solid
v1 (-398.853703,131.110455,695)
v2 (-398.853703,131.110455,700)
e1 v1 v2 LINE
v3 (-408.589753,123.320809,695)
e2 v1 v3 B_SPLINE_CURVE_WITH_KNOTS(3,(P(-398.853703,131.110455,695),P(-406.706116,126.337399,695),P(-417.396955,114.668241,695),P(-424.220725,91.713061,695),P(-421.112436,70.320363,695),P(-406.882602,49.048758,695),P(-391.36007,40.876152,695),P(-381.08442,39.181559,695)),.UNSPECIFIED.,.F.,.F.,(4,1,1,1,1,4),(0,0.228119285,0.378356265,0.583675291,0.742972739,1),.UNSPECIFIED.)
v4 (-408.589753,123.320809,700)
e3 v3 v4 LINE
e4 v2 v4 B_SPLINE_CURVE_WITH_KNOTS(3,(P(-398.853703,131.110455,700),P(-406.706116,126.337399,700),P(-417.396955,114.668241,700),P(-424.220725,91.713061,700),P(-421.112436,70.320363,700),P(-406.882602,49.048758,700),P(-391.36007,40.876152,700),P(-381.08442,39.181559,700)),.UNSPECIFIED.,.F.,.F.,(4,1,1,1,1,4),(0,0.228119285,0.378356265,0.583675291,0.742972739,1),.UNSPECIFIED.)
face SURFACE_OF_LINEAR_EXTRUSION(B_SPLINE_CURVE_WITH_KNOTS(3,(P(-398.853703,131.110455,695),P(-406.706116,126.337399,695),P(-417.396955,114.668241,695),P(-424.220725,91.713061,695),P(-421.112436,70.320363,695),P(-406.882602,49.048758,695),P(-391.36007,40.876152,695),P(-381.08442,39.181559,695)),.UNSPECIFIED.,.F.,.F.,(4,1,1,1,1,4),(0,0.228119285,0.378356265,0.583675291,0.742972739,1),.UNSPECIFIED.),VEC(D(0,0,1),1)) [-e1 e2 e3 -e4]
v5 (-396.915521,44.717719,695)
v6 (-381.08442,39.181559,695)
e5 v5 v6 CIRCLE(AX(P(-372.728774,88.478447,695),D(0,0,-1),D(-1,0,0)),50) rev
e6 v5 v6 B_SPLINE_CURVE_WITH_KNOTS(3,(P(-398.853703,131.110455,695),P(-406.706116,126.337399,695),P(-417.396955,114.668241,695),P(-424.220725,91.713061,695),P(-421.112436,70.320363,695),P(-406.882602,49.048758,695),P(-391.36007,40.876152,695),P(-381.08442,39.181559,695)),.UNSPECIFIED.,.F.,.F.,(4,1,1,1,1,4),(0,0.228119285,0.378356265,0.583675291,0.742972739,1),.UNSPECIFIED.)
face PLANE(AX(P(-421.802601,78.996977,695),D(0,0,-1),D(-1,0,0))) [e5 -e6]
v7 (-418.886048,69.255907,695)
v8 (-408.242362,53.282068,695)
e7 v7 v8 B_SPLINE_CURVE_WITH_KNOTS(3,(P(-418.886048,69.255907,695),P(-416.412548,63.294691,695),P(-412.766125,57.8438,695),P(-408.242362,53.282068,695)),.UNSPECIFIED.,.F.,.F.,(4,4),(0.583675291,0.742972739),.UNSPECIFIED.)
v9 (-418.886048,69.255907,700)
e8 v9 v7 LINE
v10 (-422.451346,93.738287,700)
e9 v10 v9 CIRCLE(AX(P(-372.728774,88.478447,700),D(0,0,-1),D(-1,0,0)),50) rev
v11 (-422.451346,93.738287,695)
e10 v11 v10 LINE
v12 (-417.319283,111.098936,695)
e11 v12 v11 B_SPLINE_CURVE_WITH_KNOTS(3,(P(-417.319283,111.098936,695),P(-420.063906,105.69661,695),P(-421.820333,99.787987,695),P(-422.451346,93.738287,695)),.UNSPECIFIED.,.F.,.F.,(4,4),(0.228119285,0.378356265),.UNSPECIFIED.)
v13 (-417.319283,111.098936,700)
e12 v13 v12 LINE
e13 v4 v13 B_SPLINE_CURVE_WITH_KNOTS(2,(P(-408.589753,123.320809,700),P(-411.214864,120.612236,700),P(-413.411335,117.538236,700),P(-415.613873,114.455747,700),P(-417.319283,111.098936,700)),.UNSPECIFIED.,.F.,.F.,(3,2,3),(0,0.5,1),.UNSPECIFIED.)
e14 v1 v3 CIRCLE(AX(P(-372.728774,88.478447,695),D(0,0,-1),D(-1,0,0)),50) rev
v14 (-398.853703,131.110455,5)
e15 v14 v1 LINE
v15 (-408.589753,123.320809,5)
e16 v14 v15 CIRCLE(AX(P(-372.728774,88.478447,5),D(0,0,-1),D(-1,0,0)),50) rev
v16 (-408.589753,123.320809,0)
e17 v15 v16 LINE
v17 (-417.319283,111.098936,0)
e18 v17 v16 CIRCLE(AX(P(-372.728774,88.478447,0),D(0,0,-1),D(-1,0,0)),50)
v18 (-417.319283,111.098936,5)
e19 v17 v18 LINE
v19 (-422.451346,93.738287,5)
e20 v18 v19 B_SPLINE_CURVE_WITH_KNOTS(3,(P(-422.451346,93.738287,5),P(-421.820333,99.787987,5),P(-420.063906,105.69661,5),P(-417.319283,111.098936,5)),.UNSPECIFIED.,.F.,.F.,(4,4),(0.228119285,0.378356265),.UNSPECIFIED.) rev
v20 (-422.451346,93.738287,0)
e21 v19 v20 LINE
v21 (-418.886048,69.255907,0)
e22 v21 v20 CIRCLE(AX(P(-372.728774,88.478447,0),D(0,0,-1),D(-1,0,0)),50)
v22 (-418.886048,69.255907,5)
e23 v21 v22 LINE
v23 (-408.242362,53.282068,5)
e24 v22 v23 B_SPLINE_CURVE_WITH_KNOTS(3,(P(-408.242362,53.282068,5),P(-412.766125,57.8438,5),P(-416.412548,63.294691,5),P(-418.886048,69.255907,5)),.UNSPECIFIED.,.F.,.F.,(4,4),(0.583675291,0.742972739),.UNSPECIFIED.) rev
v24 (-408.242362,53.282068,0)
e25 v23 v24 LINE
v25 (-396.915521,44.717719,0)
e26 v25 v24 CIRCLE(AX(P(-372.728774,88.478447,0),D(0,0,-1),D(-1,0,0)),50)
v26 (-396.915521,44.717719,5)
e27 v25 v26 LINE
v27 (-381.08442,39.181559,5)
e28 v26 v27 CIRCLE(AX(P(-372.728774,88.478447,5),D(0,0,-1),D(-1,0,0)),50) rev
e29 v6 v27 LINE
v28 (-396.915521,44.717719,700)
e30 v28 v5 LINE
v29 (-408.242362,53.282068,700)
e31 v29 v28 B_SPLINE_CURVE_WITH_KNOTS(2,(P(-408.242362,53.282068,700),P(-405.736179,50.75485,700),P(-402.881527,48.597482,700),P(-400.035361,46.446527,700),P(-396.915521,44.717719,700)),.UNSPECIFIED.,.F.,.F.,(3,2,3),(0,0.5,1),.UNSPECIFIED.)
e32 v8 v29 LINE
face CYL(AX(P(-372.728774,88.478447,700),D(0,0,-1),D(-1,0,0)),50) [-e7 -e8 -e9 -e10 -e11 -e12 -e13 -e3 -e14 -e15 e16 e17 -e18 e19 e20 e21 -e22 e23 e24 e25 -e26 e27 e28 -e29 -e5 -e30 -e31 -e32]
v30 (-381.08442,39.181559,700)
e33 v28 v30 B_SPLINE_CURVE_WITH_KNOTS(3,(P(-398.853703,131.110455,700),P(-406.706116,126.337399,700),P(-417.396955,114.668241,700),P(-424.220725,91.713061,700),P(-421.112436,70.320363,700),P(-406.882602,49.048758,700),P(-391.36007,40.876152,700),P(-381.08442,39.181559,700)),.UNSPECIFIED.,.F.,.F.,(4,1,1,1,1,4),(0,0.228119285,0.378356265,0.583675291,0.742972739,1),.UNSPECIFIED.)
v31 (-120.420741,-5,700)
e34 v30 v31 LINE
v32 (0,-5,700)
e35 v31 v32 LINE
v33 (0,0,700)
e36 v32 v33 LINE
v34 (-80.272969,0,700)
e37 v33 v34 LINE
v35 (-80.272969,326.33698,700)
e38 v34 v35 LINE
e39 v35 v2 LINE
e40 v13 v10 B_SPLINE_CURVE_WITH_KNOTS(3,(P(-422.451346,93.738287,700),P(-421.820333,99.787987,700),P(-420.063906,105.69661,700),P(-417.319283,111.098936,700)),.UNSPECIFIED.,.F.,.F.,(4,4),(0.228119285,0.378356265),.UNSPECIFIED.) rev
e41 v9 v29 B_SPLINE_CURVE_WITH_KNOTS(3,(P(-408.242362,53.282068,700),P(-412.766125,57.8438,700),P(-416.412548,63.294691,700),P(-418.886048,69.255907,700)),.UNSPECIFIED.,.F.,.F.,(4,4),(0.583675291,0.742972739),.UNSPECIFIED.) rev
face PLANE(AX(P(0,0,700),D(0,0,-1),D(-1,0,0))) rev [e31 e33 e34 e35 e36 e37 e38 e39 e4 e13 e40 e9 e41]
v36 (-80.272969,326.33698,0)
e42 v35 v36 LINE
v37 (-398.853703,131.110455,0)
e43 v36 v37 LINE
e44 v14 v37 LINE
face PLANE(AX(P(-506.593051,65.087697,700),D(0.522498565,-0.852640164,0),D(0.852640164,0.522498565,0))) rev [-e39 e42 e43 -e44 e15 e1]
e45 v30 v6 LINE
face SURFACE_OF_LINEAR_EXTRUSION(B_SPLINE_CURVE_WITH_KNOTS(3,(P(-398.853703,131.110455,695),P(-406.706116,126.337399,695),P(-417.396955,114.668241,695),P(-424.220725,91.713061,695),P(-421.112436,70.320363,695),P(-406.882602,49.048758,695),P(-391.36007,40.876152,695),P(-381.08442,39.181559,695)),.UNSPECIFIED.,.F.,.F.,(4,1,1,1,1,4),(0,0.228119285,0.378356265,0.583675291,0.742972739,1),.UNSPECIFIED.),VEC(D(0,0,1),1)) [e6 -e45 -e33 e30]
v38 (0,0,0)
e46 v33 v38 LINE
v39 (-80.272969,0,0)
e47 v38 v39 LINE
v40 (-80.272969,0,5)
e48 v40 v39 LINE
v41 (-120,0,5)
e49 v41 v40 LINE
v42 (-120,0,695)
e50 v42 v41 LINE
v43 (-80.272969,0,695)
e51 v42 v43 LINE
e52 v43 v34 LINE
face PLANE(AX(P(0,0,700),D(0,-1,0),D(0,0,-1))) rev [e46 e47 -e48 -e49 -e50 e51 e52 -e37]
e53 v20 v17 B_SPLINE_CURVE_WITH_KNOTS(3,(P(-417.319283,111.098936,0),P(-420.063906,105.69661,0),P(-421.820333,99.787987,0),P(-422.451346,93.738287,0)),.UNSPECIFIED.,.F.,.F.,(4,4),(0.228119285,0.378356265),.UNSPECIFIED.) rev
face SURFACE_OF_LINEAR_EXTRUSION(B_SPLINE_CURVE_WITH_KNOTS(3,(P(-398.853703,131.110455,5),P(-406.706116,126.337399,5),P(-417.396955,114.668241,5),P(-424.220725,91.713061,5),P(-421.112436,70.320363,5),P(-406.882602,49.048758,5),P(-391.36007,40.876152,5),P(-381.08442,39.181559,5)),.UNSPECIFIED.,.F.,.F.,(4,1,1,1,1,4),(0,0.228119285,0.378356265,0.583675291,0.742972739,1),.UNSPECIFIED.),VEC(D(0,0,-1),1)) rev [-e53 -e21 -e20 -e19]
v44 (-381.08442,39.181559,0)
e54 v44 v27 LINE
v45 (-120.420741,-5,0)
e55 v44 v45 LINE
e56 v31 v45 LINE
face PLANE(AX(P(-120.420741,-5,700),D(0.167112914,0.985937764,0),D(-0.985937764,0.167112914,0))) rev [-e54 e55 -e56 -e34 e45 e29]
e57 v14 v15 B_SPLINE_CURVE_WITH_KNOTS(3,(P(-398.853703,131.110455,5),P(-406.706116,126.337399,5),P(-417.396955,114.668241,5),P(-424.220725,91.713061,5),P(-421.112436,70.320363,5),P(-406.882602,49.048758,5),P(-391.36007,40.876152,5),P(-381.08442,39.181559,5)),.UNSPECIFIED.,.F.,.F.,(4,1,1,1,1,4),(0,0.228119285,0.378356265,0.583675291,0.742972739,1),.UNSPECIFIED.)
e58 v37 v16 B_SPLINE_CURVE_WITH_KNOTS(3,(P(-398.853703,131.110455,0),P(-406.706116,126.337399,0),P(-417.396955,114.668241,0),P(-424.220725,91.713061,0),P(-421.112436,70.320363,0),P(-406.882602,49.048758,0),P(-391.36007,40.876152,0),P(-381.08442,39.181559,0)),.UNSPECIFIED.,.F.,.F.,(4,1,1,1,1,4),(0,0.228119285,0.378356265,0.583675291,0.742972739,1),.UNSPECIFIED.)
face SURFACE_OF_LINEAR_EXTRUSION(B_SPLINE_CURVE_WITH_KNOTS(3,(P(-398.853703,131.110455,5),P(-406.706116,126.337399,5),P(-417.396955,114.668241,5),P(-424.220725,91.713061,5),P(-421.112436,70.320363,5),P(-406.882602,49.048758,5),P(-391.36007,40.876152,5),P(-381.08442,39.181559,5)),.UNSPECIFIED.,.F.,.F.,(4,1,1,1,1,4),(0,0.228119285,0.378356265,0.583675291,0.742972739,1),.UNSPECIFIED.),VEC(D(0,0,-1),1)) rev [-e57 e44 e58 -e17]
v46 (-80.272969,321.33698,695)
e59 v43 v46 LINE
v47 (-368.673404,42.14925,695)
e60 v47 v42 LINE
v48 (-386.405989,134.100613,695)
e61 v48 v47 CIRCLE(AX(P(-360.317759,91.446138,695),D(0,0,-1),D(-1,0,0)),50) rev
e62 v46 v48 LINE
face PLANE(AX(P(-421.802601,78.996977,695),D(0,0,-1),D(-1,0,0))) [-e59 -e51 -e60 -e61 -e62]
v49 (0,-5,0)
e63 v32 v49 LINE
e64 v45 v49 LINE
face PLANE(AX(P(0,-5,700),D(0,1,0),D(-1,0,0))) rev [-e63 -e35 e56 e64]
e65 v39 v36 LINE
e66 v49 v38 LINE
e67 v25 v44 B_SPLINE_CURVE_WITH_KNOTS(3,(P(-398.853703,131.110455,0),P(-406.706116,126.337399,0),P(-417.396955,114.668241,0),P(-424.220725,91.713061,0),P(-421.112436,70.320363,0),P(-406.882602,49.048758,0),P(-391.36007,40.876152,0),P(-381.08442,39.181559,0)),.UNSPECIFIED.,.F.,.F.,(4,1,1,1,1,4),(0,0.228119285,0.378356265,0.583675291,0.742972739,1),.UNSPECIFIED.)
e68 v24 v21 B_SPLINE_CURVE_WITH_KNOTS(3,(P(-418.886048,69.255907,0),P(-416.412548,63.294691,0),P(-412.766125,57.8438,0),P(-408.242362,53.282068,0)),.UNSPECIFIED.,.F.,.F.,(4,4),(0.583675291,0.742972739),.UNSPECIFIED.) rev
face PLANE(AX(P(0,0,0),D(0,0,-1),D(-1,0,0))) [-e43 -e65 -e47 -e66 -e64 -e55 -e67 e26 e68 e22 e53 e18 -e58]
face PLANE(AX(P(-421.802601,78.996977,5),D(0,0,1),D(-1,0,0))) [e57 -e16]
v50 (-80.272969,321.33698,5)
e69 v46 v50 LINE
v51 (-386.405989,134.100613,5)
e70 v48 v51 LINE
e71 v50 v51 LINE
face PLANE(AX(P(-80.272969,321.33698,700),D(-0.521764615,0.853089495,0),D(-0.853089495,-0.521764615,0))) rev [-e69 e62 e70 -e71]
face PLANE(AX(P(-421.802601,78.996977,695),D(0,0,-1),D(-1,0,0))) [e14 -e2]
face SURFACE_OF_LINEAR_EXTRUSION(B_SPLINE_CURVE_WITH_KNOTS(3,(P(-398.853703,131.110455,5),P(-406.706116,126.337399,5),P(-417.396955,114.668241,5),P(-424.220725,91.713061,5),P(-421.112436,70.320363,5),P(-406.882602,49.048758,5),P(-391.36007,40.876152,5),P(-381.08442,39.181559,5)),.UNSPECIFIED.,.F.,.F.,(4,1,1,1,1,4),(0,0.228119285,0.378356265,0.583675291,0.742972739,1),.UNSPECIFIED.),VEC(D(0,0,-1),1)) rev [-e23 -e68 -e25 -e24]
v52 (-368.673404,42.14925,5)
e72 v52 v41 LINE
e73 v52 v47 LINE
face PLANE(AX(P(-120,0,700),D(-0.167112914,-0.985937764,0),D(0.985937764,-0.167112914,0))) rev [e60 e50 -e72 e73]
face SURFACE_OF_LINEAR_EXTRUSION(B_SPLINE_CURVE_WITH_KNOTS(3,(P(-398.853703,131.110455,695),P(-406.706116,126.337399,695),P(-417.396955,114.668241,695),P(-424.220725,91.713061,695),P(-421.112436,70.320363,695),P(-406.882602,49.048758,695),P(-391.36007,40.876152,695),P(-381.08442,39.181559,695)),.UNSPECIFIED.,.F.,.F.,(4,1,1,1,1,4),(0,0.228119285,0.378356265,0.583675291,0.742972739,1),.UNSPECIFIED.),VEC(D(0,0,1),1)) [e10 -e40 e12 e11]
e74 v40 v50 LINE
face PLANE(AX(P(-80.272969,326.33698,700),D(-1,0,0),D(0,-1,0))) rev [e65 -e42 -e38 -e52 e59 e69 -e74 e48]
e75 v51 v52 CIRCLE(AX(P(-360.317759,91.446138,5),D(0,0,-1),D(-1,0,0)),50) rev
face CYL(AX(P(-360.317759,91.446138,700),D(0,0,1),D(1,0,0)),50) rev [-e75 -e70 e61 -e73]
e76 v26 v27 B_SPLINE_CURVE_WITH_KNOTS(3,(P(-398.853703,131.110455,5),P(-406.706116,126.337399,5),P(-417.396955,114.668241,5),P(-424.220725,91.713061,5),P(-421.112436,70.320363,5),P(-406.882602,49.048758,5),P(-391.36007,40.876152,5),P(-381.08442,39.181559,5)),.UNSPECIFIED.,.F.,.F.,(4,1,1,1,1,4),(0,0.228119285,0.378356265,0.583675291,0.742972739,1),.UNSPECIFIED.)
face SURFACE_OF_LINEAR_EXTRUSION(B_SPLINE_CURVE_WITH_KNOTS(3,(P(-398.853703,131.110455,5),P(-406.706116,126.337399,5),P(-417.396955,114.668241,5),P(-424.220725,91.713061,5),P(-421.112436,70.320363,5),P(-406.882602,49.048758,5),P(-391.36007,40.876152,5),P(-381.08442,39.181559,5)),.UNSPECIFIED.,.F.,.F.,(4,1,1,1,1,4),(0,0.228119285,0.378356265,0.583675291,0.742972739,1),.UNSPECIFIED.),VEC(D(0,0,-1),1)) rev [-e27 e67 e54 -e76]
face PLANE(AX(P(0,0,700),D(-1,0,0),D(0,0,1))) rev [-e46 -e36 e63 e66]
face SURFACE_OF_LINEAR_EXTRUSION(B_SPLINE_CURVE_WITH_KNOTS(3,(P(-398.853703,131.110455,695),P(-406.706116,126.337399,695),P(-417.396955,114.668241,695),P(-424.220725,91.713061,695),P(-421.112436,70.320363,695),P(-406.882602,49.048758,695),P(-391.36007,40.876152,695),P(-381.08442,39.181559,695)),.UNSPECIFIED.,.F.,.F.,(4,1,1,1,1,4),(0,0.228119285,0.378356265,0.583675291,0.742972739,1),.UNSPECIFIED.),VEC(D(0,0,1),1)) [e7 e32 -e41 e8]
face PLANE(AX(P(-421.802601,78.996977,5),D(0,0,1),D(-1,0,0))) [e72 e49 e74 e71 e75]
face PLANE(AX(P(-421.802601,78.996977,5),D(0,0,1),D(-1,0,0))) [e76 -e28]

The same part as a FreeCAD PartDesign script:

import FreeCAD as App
import Part
import Sketcher

V = App.Vector
Q = App.Units.Quantity


def edges_at(feature, points):
    """Names of the edges that pass closest to the given points."""
    edges = feature.Shape.Edges
    near = lambda p: min(range(len(edges)), key=lambda i: edges[i].distToShape(Part.Vertex(*p))[0])
    return sorted({f"Edge{near(p) + 1}" for p in points})

doc = App.newDocument("Part")
body = doc.addObject("PartDesign::Body", "Body")

sketch1 = body.newObject("Sketcher::SketchObject", "Sketch")
sketch1.AttachmentSupport = (doc.getObject("XY_Plane"), [""])
sketch1.MapMode = "FlatFace"
sketch1.addGeometry(Part.LineSegment(V(0, 0, 0), V(-120, 0, 0)), False)
sketch1.addGeometry(Part.LineSegment(V(-120, 0, 0), V(-500, 64, 0)), False)
sketch1.addGeometry(Part.LineSegment(V(-500, 64, 0), V(-80, 321, 0)), False)
sketch1.addGeometry(Part.LineSegment(V(-80, 321, 0), V(-80, 326, 0)), False)
sketch1.addGeometry(Part.LineSegment(V(-80, 326, 0), V(-507, 65, 0)), False)
sketch1.addGeometry(Part.LineSegment(V(-507, 65, 0), V(-513, 61, 0)), False)
sketch1.addGeometry(Part.LineSegment(V(-513, 61, 0), V(-120, -5, 0)), False)
sketch1.addGeometry(Part.LineSegment(V(-120, -5, 0), V(0, -5, 0)), False)
sketch1.addGeometry(Part.LineSegment(V(0, -5, 0), V(0, 0, 0)), False)
sketch1.addConstraint(Sketcher.Constraint("Coincident", 0, 2, 1, 1))
sketch1.addConstraint(Sketcher.Constraint("Coincident", 1, 2, 2, 1))
sketch1.addConstraint(Sketcher.Constraint("Coincident", 2, 2, 3, 1))
sketch1.addConstraint(Sketcher.Constraint("Coincident", 3, 2, 4, 1))
sketch1.addConstraint(Sketcher.Constraint("Coincident", 4, 2, 5, 1))
sketch1.addConstraint(Sketcher.Constraint("Coincident", 5, 2, 6, 1))
sketch1.addConstraint(Sketcher.Constraint("Coincident", 6, 2, 7, 1))
sketch1.addConstraint(Sketcher.Constraint("Coincident", 7, 2, 8, 1))
sketch1.addConstraint(Sketcher.Constraint("Coincident", 8, 2, 0, 1))
sketch1.addConstraint(Sketcher.Constraint("Horizontal", 0))
sketch1.addConstraint(Sketcher.Constraint("Vertical", 3))
sketch1.addConstraint(Sketcher.Constraint("Horizontal", 7))
sketch1.addConstraint(Sketcher.Constraint("Vertical", 8))
sketch1.addConstraint(Sketcher.Constraint("Coincident", 8, 2, -1, 1))
sketch1.addConstraint(Sketcher.Constraint("Parallel", 4, 5))
sketch1.addConstraint(Sketcher.Constraint("Parallel", 1, 6))
sketch1.addConstraint(Sketcher.Constraint("Equal", 3, 8))
sketch1.addConstraint(Sketcher.Constraint("DistanceX", 0, 2, 0, 1, Q("120 mm")))
sketch1.addConstraint(Sketcher.Constraint("DistanceY", 3, 1, 3, 2, Q("5 mm")))
sketch1.addConstraint(Sketcher.Constraint("Distance", 4, Q("500 mm")))
sketch1.addConstraint(Sketcher.Constraint("Angle", 4, Q("-148.5 deg")))
sketch1.addConstraint(Sketcher.Constraint("Angle", 1, Q("170.38 deg")))
sketch1.addConstraint(Sketcher.Constraint("DistanceX", 7, 1, 7, 2, Q("120.420741 mm")))
sketch1.addConstraint(Sketcher.Constraint("DistanceY", 1, 2, 2, 2, Q("256.8815 mm")))
sketch1.addConstraint(Sketcher.Constraint("Distance", 1, Q("385.70017 mm")))
sketch1.addConstraint(Sketcher.Constraint("Distance", 2, Q("492.332161 mm")))
pad1 = body.newObject("PartDesign::Pad", "Pad")
pad1.Profile = sketch1
pad1.Length = 700
doc.recompute()

fillet = body.newObject("PartDesign::Fillet", "Fillet")
fillet.Base = (pad1, edges_at(pad1, [(-500.276, 64.455, 350)]))
fillet.Radius = 50
doc.recompute()

fillet2 = body.newObject("PartDesign::Fillet", "Fillet001")
fillet2.Base = (fillet, edges_at(fillet, [(-512.515, 61.459, 350)]))
fillet2.Radius = 50

sketch2 = body.newObject("Sketcher::SketchObject", "Sketch001")
sketch2.AttachmentSupport = (doc.getObject("XY_Plane"), [""])
sketch2.MapMode = "FlatFace"
sketch2.AttachmentOffset = App.Placement(V(0, 0, 700), App.Rotation())
sketch2.addGeometry(Part.LineSegment(V(-381.08442, 39.181559, 0), V(-120.420741, -5, 0)), False)
sketch2.addGeometry(Part.LineSegment(V(-120.420741, -5, 0), V(-80.272969, -5, 0)), False)
sketch2.addGeometry(Part.LineSegment(V(-80.272969, -5, 0), V(-80.272969, 326.33698, 0)), False)
sketch2.addGeometry(Part.LineSegment(V(-80.272969, 326.33698, 0), V(-398.853703, 131.110455, 0)), False)
sketch2.addGeometry(Part.BSplineCurve([V(-398.853703, 131.110455, 0), V(-406.706116, 126.337399, 0), V(-417.396955, 114.668241, 0), V(-424.220725, 91.713061, 0), V(-421.112436, 70.320363, 0), V(-406.882602, 49.048758, 0), V(-391.36007, 40.876152, 0), V(-381.08442, 39.181559, 0)], [4, 1, 1, 1, 1, 4], [0, 0.228119285, 0.378356265, 0.583675291, 0.742972739, 1], False, 3, [1, 1, 1, 1, 1, 1, 1, 1], False), False)
sketch2.addConstraint(Sketcher.Constraint("Block", 4))
sketch2.addConstraint(Sketcher.Constraint("Coincident", 0, 2, 1, 1))
sketch2.addConstraint(Sketcher.Constraint("Coincident", 1, 2, 2, 1))
sketch2.addConstraint(Sketcher.Constraint("Coincident", 2, 2, 3, 1))
sketch2.addConstraint(Sketcher.Constraint("Coincident", 3, 2, 4, 1))
sketch2.addConstraint(Sketcher.Constraint("Coincident", 4, 2, 0, 1))
sketch2.addConstraint(Sketcher.Constraint("Horizontal", 1))
sketch2.addConstraint(Sketcher.Constraint("Vertical", 2))
sketch2.addConstraint(Sketcher.Constraint("DistanceY", 0, 2, -1, 1, Q("5 mm")))
sketch2.addConstraint(Sketcher.Constraint("DistanceX", 1, 1, 1, 2, Q("40.147771 mm")))
sketch2.addConstraint(Sketcher.Constraint("DistanceY", 2, 1, 2, 2, Q("331.33698 mm")))
sketch2.addConstraint(Sketcher.Constraint("DistanceX", 0, 2, -1, 1, Q("120.420741 mm")))
pad2 = body.newObject("PartDesign::Pad", "Pad001")
pad2.Profile = sketch2
pad2.Length = 5
pad2.Reversed = True
body2 = doc.addObject("PartDesign::Body", "Body001")
doc.recompute()

body2.BaseFeature = body
doc.recompute()

mirroring = doc.addObject("Part::Mirroring", "Mirroring")
mirroring.Source = body
mirroring.Base = V(0, 0, 350)
mirroring.Normal = V(0, 0, 1)
body3 = doc.addObject("PartDesign::Body", "Body002")
body3.BaseFeature = mirroring
boolean = body2.newObject("PartDesign::Boolean", "Boolean")
boolean.Type = "Fuse"
boolean.addObjects([body3])
doc.recompute()
mirroring.Visibility = False

doc.recompute()
